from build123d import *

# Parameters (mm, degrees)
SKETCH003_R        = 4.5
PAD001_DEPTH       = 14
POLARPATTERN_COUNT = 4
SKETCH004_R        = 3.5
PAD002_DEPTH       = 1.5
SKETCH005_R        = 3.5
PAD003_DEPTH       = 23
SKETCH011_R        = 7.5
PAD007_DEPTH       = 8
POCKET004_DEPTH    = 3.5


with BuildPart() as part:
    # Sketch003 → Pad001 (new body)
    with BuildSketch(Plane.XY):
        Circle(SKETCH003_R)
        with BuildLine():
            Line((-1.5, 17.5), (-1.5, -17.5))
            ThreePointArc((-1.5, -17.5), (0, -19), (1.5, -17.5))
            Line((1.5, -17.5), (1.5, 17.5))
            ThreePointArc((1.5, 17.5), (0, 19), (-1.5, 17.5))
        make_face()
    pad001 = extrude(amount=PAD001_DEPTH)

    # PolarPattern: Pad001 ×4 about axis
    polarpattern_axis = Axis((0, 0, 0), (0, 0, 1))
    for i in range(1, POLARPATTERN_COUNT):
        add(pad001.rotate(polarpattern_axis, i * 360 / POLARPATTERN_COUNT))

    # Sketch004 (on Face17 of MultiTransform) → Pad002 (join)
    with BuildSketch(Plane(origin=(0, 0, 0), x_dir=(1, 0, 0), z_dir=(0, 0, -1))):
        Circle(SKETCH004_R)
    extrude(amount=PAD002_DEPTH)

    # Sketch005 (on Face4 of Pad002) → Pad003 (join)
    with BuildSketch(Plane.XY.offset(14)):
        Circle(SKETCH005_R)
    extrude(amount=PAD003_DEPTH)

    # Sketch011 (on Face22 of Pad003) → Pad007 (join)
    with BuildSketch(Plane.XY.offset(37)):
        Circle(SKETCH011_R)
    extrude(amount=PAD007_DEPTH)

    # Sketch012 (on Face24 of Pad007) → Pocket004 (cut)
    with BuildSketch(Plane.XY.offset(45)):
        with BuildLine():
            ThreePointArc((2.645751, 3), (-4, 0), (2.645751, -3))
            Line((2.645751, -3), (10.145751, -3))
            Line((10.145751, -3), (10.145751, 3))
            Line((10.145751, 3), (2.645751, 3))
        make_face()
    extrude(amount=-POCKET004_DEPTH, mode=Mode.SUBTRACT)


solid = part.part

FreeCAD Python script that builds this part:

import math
import FreeCAD as App
import Part
import Sketcher

doc = App.newDocument("Part")
body = doc.addObject("PartDesign::Body", "Body")

sketch1 = doc.addObject("Sketcher::SketchObject", "Sketch")
body.addObject(sketch1)
sketch1.AttachmentSupport = (doc.XY_Plane, [""])
sketch1.MapMode = "FlatFace"
sketch1.addGeometry([
    Part.ArcOfCircle(Part.Circle(App.Vector(0, 0, 0), App.Vector(0, 0, 1), 4.5), math.radians(-70.528779), math.radians(70.528779)),
    Part.LineSegment(App.Vector(1.5, 4.242641, 0), App.Vector(1.5, 17.5, 0)),
    Part.ArcOfCircle(Part.Circle(App.Vector(0, 17.5, 0), App.Vector(0, 0, 1), 1.5), math.radians(0), math.radians(180)),
    Part.LineSegment(App.Vector(-1.5, 17.5, 0), App.Vector(-1.5, 4.242641, 0)),
    Part.ArcOfCircle(Part.Circle(App.Vector(0, 0, 0), App.Vector(0, 0, 1), 4.5), math.radians(109.471221), math.radians(250.528779)),
    Part.LineSegment(App.Vector(-1.5, -4.242641, 0), App.Vector(-1.5, -17.5, 0)),
    Part.ArcOfCircle(Part.Circle(App.Vector(0, -17.5, 0), App.Vector(0, 0, 1), 1.5), math.radians(180), math.radians(360)),
    Part.LineSegment(App.Vector(1.5, -17.5, 0), App.Vector(1.5, -4.242641, 0)),
], False)
sketch1.addConstraint([
    Sketcher.Constraint("Coincident", 0, 2, 1, 1),
    Sketcher.Constraint("Tangent", 1, 2, 2, 1),
    Sketcher.Constraint("Tangent", 2, 2, 3, 1),
    Sketcher.Constraint("Coincident", 3, 2, 4, 1),
    Sketcher.Constraint("Coincident", 4, 2, 5, 1),
    Sketcher.Constraint("Tangent", 5, 2, 6, 1),
    Sketcher.Constraint("Tangent", 6, 2, 7, 1),
    Sketcher.Constraint("Coincident", 7, 2, 0, 1),
    Sketcher.Constraint("Vertical", 1),
    Sketcher.Constraint("Vertical", 3),
    Sketcher.Constraint("Vertical", 5),
    Sketcher.Constraint("Vertical", 7),
    Sketcher.Constraint("Coincident", 0, 3, -1, 1),
    Sketcher.Constraint("Coincident", 4, 3, -1, 1),
    Sketcher.Constraint("Equal", 0, 4),
    Sketcher.Constraint("Equal", 2, 6),
    Sketcher.Constraint("Symmetric", 2, 3, 6, 3, -1, 1),
    Sketcher.Constraint("PointOnObject", 2, 3, -2),
    Sketcher.Constraint("Radius", 0, 4.5),
    Sketcher.Constraint("Radius", 2, 1.5),
    Sketcher.Constraint("DistanceY", 6, 3, 2, 3, 35.0),
])
pad1 = doc.addObject("PartDesign::Pad", "Pad")
body.addObject(pad1)
pad1.Profile = sketch1
pad1.Length = 14
doc.recompute()

polarpattern = doc.addObject("PartDesign::PolarPattern", "PolarPattern")
body.addObject(polarpattern)
polarpattern.Originals = [pad1]
polarpattern.Axis = (doc.Z_Axis, [""])
polarpattern.Angle = 360
polarpattern.Occurrences = 4
body.Tip = polarpattern

sketch2 = doc.addObject("Sketcher::SketchObject", "Sketch001")
body.addObject(sketch2)
sketch2.AttachmentSupport = (doc.XY_Plane, [""])
sketch2.MapMode = "FlatFace"
sketch2.addGeometry(Part.Circle(App.Vector(0, 0, 0), App.Vector(0, 0, 1), 3.5), False)
sketch2.addConstraint([
    Sketcher.Constraint("Coincident", 0, 3, -1, 1),
    Sketcher.Constraint("Diameter", 0, 7.0),
])
pad2 = doc.addObject("PartDesign::Pad", "Pad001")
body.addObject(pad2)
pad2.Profile = sketch2
pad2.Length = 1.5
pad2.Reversed = True

sketch3 = doc.addObject("Sketcher::SketchObject", "Sketch002")
body.addObject(sketch3)
sketch3.AttachmentSupport = (doc.XY_Plane, [""])
sketch3.MapMode = "FlatFace"
sketch3.AttachmentOffset = App.Placement(App.Vector(0, 0, 14), App.Rotation())
sketch3.addGeometry(Part.Circle(App.Vector(0, 0, 0), App.Vector(0, 0, 1), 3.5), False)
sketch3.addConstraint([
    Sketcher.Constraint("Coincident", 0, 3, -1, 1),
    Sketcher.Constraint("Diameter", 0, 7.0),
])
pad3 = doc.addObject("PartDesign::Pad", "Pad002")
body.addObject(pad3)
pad3.Profile = sketch3
pad3.Length = 23

sketch4 = doc.addObject("Sketcher::SketchObject", "Sketch003")
body.addObject(sketch4)
sketch4.AttachmentSupport = (doc.XY_Plane, [""])
sketch4.MapMode = "FlatFace"
sketch4.AttachmentOffset = App.Placement(App.Vector(0, 0, 37), App.Rotation())
sketch4.addGeometry(Part.Circle(App.Vector(0, 0, 0), App.Vector(0, 0, 1), 7.5), False)
sketch4.addConstraint([
    Sketcher.Constraint("Coincident", 0, 3, -1, 1),
    Sketcher.Constraint("Diameter", 0, 15.0),
])
pad4 = doc.addObject("PartDesign::Pad", "Pad003")
body.addObject(pad4)
pad4.Profile = sketch4
pad4.Length = 8

sketch5 = doc.addObject("Sketcher::SketchObject", "Sketch004")
body.addObject(sketch5)
sketch5.AttachmentSupport = (doc.XY_Plane, [""])
sketch5.MapMode = "FlatFace"
sketch5.AttachmentOffset = App.Placement(App.Vector(0, 0, 45), App.Rotation())
sketch5.addGeometry([
    Part.ArcOfCircle(Part.Circle(App.Vector(0, 0, 0), App.Vector(0, 0, 1), 4), math.radians(48.59038), math.radians(311.40962)),
    Part.LineSegment(App.Vector(2.645751, -3, 0), App.Vector(10.145751, -3, 0)),
    Part.LineSegment(App.Vector(10.145751, -3, 0), App.Vector(10.145751, 3, 0)),
    Part.LineSegment(App.Vector(10.145751, 3, 0), App.Vector(2.645751, 3, 0)),
], False)
sketch5.addConstraint([
    Sketcher.Constraint("Coincident", 0, 2, 1, 1),
    Sketcher.Constraint("Coincident", 1, 2, 2, 1),
    Sketcher.Constraint("Coincident", 2, 2, 3, 1),
    Sketcher.Constraint("Coincident", 3, 2, 0, 1),
    Sketcher.Constraint("Horizontal", 1),
    Sketcher.Constraint("Vertical", 2),
    Sketcher.Constraint("Horizontal", 3),
    Sketcher.Constraint("Coincident", 0, 3, -1, 1),
    Sketcher.Constraint("Vertical", 0, 2, 3, 2),
    Sketcher.Constraint("Radius", 0, 4.0),
    Sketcher.Constraint("DistanceY", 2, 1, 2, 2, 6.0),
    Sketcher.Constraint("DistanceX", 1, 1, 1, 2, 7.5),
])
pocket1 = doc.addObject("PartDesign::Pocket", "Pocket")
body.addObject(pocket1)
pocket1.Profile = sketch5
pocket1.Length = 3.5

doc.recompute()
